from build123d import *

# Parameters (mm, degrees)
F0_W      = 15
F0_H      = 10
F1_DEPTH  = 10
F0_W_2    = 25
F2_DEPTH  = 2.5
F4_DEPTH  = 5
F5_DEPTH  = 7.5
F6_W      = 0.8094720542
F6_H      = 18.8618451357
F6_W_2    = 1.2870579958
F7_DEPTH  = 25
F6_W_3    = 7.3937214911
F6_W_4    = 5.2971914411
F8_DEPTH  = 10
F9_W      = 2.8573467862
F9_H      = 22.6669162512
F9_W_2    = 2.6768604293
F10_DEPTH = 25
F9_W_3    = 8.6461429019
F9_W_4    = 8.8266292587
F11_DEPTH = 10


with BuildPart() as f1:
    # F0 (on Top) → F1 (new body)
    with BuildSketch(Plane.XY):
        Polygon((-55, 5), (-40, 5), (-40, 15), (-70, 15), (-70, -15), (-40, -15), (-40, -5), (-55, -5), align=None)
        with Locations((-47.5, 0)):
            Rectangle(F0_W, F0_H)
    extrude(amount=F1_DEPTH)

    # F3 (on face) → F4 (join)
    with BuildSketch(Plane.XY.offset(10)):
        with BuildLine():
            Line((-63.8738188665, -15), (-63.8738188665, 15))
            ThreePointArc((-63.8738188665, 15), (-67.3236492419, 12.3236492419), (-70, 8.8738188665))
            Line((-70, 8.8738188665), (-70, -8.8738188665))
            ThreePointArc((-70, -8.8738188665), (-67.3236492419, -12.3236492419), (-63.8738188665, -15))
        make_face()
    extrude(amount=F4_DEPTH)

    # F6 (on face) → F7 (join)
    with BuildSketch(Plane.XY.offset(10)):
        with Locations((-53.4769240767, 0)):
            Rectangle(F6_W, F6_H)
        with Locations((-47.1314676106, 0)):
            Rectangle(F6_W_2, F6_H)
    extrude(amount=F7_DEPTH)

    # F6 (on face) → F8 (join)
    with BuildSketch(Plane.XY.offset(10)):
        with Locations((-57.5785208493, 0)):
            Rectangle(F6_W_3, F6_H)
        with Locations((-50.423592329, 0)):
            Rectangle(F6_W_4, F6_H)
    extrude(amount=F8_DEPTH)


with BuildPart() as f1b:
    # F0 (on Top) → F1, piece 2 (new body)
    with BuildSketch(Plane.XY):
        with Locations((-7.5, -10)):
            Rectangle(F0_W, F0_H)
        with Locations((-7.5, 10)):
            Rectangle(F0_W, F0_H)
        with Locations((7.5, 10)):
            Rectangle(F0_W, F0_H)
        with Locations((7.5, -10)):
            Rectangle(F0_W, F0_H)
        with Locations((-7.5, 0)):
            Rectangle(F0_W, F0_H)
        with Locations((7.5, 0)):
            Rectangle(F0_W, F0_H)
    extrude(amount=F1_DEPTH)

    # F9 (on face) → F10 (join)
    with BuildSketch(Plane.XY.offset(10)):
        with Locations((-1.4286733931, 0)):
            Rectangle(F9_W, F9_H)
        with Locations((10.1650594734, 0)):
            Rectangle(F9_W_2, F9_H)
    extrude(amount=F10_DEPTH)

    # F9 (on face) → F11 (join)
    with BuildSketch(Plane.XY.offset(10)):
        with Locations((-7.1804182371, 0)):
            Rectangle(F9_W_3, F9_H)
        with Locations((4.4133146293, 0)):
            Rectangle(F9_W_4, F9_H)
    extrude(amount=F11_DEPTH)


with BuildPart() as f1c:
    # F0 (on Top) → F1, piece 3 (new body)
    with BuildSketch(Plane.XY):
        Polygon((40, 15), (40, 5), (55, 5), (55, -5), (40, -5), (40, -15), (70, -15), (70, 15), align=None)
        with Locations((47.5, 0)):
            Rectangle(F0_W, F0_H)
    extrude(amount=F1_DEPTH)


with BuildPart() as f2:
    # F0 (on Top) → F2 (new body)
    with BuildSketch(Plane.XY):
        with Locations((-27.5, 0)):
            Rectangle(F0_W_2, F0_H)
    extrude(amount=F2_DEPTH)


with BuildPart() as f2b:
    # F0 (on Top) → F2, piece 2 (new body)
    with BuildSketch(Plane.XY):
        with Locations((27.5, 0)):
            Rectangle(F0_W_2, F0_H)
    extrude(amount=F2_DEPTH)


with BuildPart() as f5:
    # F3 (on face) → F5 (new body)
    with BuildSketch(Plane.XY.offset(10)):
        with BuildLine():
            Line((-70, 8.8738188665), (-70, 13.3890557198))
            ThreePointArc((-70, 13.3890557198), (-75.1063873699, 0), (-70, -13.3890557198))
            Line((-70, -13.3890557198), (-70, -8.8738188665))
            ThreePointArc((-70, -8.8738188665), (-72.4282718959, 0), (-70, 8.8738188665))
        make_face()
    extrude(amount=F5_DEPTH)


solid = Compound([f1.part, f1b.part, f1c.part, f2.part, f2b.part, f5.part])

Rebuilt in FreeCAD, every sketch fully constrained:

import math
import FreeCAD as App
import Part
import Sketcher


def add_polygon(sketch, points):
    """Adds a closed chain of lines whose ends are joined by coincident constraints."""
    first, n = sketch.GeometryCount, len(points)
    for a, b in zip(points, points[1:] + points[:1]):
        sketch.addGeometry(Part.LineSegment(App.Vector(*a, 0), App.Vector(*b, 0)), False)
    for i in range(n):
        sketch.addConstraint(Sketcher.Constraint("Coincident", first + i, 2, first + (i + 1) % n, 1))

doc = App.newDocument("Part")
body = doc.addObject("PartDesign::Body", "Body")

# Sketch on XY plane
sketch1 = body.newObject("Sketcher::SketchObject", "Sketch")
sketch1.AttachmentSupport = (doc.getObject("XY_Plane"), [""])
sketch1.MapMode = "FlatFace"
add_polygon(sketch1, [(-40, 15), (-70, 15), (-70, -15), (-40, -15)])  # lines 0-3
sketch1.addConstraint(Sketcher.Constraint("Horizontal", 0))
sketch1.addConstraint(Sketcher.Constraint("Vertical", 1))
sketch1.addConstraint(Sketcher.Constraint("Horizontal", 2))
sketch1.addConstraint(Sketcher.Constraint("Vertical", 3))
sketch1.addConstraint(Sketcher.Constraint("Equal", 2, 1))
sketch1.addConstraint(Sketcher.Constraint("DistanceX", 0, 2, 0, 1, 30.0))
sketch1.addConstraint(Sketcher.Constraint("DistanceX", 0, 2, -1, 1, 70.0))
sketch1.addConstraint(Sketcher.Constraint("DistanceY", -1, 1, 0, 2, 15.0))
pad1 = body.newObject("PartDesign::Pad", "Pad")
pad1.Profile = sketch1
pad1.Length = 10

# Sketch on XY plane
sketch2 = body.newObject("Sketcher::SketchObject", "Sketch001")
sketch2.AttachmentSupport = (doc.getObject("XY_Plane"), [""])
sketch2.MapMode = "FlatFace"
sketch2.AttachmentOffset = App.Placement(App.Vector(0, 0, 10), App.Rotation())
sketch2.addGeometry(Part.LineSegment(App.Vector(-64, -15, 0), App.Vector(-64, 15, 0)), False)
sketch2.addGeometry(Part.ArcOfCircle(Part.Circle(App.Vector(-55, 0, 0), App.Vector(0, 0, 1), 17), math.radians(121), math.radians(149)), False)
sketch2.addGeometry(Part.LineSegment(App.Vector(-70, 9, 0), App.Vector(-70, -9, 0)), False)
sketch2.addGeometry(Part.ArcOfCircle(Part.Circle(App.Vector(-55, 0, 0), App.Vector(0, 0, 1), 17), math.radians(-149), math.radians(-121)), False)
sketch2.addConstraint(Sketcher.Constraint("Coincident", 0, 2, 1, 1))
sketch2.addConstraint(Sketcher.Constraint("Coincident", 1, 2, 2, 1))
sketch2.addConstraint(Sketcher.Constraint("Coincident", 2, 2, 3, 1))
sketch2.addConstraint(Sketcher.Constraint("Coincident", 3, 2, 0, 1))
sketch2.addConstraint(Sketcher.Constraint("Vertical", 0))
sketch2.addConstraint(Sketcher.Constraint("Vertical", 2))
sketch2.addConstraint(Sketcher.Constraint("Coincident", 3, 3, 1, 3))
sketch2.addConstraint(Sketcher.Constraint("Equal", 1, 3))
sketch2.addConstraint(Sketcher.Constraint("PointOnObject", 1, 3, -1))
sketch2.addConstraint(Sketcher.Constraint("DistanceY", 0, 1, 0, 2, 30.0))
sketch2.addConstraint(Sketcher.Constraint("DistanceX", 1, 3, -1, 1, 55.0))
sketch2.addConstraint(Sketcher.Constraint("DistanceX", 1, 2, -1, 1, 70.0))
sketch2.addConstraint(Sketcher.Constraint("Radius", 1, 17.428272))
pad2 = body.newObject("PartDesign::Pad", "Pad001")
pad2.Profile = sketch2
pad2.Length = 5

# Sketch on XY plane
sketch3 = body.newObject("Sketcher::SketchObject", "Sketch002")
sketch3.AttachmentSupport = (doc.getObject("XY_Plane"), [""])
sketch3.MapMode = "FlatFace"
sketch3.AttachmentOffset = App.Placement(App.Vector(0, 0, 10), App.Rotation())
add_polygon(sketch3, [(-53.9, 9.4), (-53.9, -9.4), (-53.1, -9.4), (-53.1, 9.4)])  # lines 0-3
add_polygon(sketch3, [(-47.8, 9.4), (-47.8, -9.4), (-46.5, -9.4), (-46.5, 9.4)])  # lines 4-7
sketch3.addConstraint(Sketcher.Constraint("Vertical", 0))
sketch3.addConstraint(Sketcher.Constraint("Horizontal", 1))
sketch3.addConstraint(Sketcher.Constraint("Vertical", 2))
sketch3.addConstraint(Sketcher.Constraint("Horizontal", 3))
sketch3.addConstraint(Sketcher.Constraint("Vertical", 4))
sketch3.addConstraint(Sketcher.Constraint("Horizontal", 5))
sketch3.addConstraint(Sketcher.Constraint("Vertical", 6))
sketch3.addConstraint(Sketcher.Constraint("Horizontal", 7))
sketch3.addConstraint(Sketcher.Constraint("Horizontal", 1, 2, 4, 2))
sketch3.addConstraint(Sketcher.Constraint("Horizontal", 3, 2, 6, 2))
sketch3.addConstraint(Sketcher.Constraint("DistanceX", 1, 1, 1, 2, 0.809472))
sketch3.addConstraint(Sketcher.Constraint("DistanceX", 5, 1, 5, 2, 1.287058))
sketch3.addConstraint(Sketcher.Constraint("DistanceY", 0, 2, 0, 1, 18.861845))
sketch3.addConstraint(Sketcher.Constraint("DistanceX", 0, 2, -1, 1, 53.88166))
sketch3.addConstraint(Sketcher.Constraint("DistanceX", 5, 2, -1, 1, 46.487939))
sketch3.addConstraint(Sketcher.Constraint("DistanceY", 0, 2, -1, 1, 9.430923))
pad3 = body.newObject("PartDesign::Pad", "Pad002")
pad3.Profile = sketch3
pad3.Length = 25

# Sketch on XY plane
sketch4 = body.newObject("Sketcher::SketchObject", "Sketch003")
sketch4.AttachmentSupport = (doc.getObject("XY_Plane"), [""])
sketch4.MapMode = "FlatFace"
sketch4.AttachmentOffset = App.Placement(App.Vector(0, 0, 10), App.Rotation())
add_polygon(sketch4, [(-61, 9), (-61, -9), (-54, -9), (-54, 9)])  # lines 0-3
add_polygon(sketch4, [(-53, 9), (-53, -9), (-48, -9), (-48, 9)])  # lines 4-7
sketch4.addConstraint(Sketcher.Constraint("Vertical", 0))
sketch4.addConstraint(Sketcher.Constraint("Horizontal", 1))
sketch4.addConstraint(Sketcher.Constraint("Vertical", 2))
sketch4.addConstraint(Sketcher.Constraint("Horizontal", 3))
sketch4.addConstraint(Sketcher.Constraint("Vertical", 4))
sketch4.addConstraint(Sketcher.Constraint("Horizontal", 5))
sketch4.addConstraint(Sketcher.Constraint("Vertical", 6))
sketch4.addConstraint(Sketcher.Constraint("Horizontal", 7))
sketch4.addConstraint(Sketcher.Constraint("Horizontal", 1, 2, 4, 2))
sketch4.addConstraint(Sketcher.Constraint("Horizontal", 3, 2, 6, 2))
sketch4.addConstraint(Sketcher.Constraint("DistanceX", 1, 1, 1, 2, 7.393721))
sketch4.addConstraint(Sketcher.Constraint("DistanceX", 5, 1, 5, 2, 5.297191))
sketch4.addConstraint(Sketcher.Constraint("DistanceY", 0, 2, 0, 1, 18.861845))
sketch4.addConstraint(Sketcher.Constraint("DistanceX", 0, 2, -1, 1, 61.275382))
sketch4.addConstraint(Sketcher.Constraint("DistanceX", 4, 2, -1, 1, 53.072188))
sketch4.addConstraint(Sketcher.Constraint("DistanceY", 0, 2, -1, 1, 9.430923))
pad4 = body.newObject("PartDesign::Pad", "Pad003")
pad4.Profile = sketch4
pad4.Length = 10
body2 = doc.addObject("PartDesign::Body", "Body001")

# Sketch on XY plane
sketch5 = body2.newObject("Sketcher::SketchObject", "Sketch004")
sketch5.AttachmentSupport = (doc.getObject("XY_Plane001"), [""])
sketch5.MapMode = "FlatFace"
add_polygon(sketch5, [(-15, -15), (15, -15), (15, 15), (-15, 15)])  # lines 0-3
sketch5.addConstraint(Sketcher.Constraint("Horizontal", 0))
sketch5.addConstraint(Sketcher.Constraint("Vertical", 1))
sketch5.addConstraint(Sketcher.Constraint("Horizontal", 2))
sketch5.addConstraint(Sketcher.Constraint("Vertical", 3))
sketch5.addConstraint(Sketcher.Constraint("Symmetric", 0, 2, 2, 2, -1, 1))
sketch5.addConstraint(Sketcher.Constraint("Equal", 2, 1))
sketch5.addConstraint(Sketcher.Constraint("DistanceX", 0, 1, 0, 2, 30.0))
pad5 = body2.newObject("PartDesign::Pad", "Pad004")
pad5.Profile = sketch5
pad5.Length = 10

# Sketch on XY plane
sketch6 = body2.newObject("Sketcher::SketchObject", "Sketch005")
sketch6.AttachmentSupport = (doc.getObject("XY_Plane001"), [""])
sketch6.MapMode = "FlatFace"
sketch6.AttachmentOffset = App.Placement(App.Vector(0, 0, 10), App.Rotation())
add_polygon(sketch6, [(-2.9, 11.3), (-2.9, -11.3), (0, -11.3), (0, 11.3)])  # lines 0-3
add_polygon(sketch6, [(8.8, 11.3), (8.8, -11.3), (11.5, -11.3), (11.5, 11.3)])  # lines 4-7
sketch6.addConstraint(Sketcher.Constraint("Vertical", 0))
sketch6.addConstraint(Sketcher.Constraint("Horizontal", 1))
sketch6.addConstraint(Sketcher.Constraint("Vertical", 2))
sketch6.addConstraint(Sketcher.Constraint("Horizontal", 3))
sketch6.addConstraint(Sketcher.Constraint("Vertical", 4))
sketch6.addConstraint(Sketcher.Constraint("Horizontal", 5))
sketch6.addConstraint(Sketcher.Constraint("Vertical", 6))
sketch6.addConstraint(Sketcher.Constraint("Horizontal", 7))
sketch6.addConstraint(Sketcher.Constraint("Symmetric", 1, 2, 2, 2, -1, 1))
sketch6.addConstraint(Sketcher.Constraint("Horizontal", 1, 2, 4, 2))
sketch6.addConstraint(Sketcher.Constraint("Horizontal", 3, 2, 6, 2))
sketch6.addConstraint(Sketcher.Constraint("DistanceX", 5, 1, 5, 2, 2.67686))
sketch6.addConstraint(Sketcher.Constraint("DistanceX", 1, 1, 1, 2, 2.857347))
sketch6.addConstraint(Sketcher.Constraint("DistanceY", 0, 2, 0, 1, 22.666916))
sketch6.addConstraint(Sketcher.Constraint("DistanceX", -1, 1, 4, 2, 8.826629))
pad6 = body2.newObject("PartDesign::Pad", "Pad005")
pad6.Profile = sketch6
pad6.Length = 25

# Sketch on XY plane
sketch7 = body2.newObject("Sketcher::SketchObject", "Sketch006")
sketch7.AttachmentSupport = (doc.getObject("XY_Plane001"), [""])
sketch7.MapMode = "FlatFace"
sketch7.AttachmentOffset = App.Placement(App.Vector(0, 0, 10), App.Rotation())
add_polygon(sketch7, [(-12, 11), (-12, -11), (-3, -11), (-3, 11)])  # lines 0-3
add_polygon(sketch7, [(0, 11), (0, -11), (9, -11), (9, 11)])  # lines 4-7
sketch7.addConstraint(Sketcher.Constraint("Vertical", 0))
sketch7.addConstraint(Sketcher.Constraint("Horizontal", 1))
sketch7.addConstraint(Sketcher.Constraint("Vertical", 2))
sketch7.addConstraint(Sketcher.Constraint("Horizontal", 3))
sketch7.addConstraint(Sketcher.Constraint("Vertical", 4))
sketch7.addConstraint(Sketcher.Constraint("Horizontal", 5))
sketch7.addConstraint(Sketcher.Constraint("Vertical", 6))
sketch7.addConstraint(Sketcher.Constraint("Horizontal", 7))
sketch7.addConstraint(Sketcher.Constraint("Symmetric", 4, 2, 7, 2, -1, 1))
sketch7.addConstraint(Sketcher.Constraint("Horizontal", 1, 2, 4, 2))
sketch7.addConstraint(Sketcher.Constraint("Horizontal", 3, 2, 6, 2))
sketch7.addConstraint(Sketcher.Constraint("DistanceX", 5, 1, 5, 2, 8.826629))
sketch7.addConstraint(Sketcher.Constraint("DistanceX", 1, 1, 1, 2, 8.646143))
sketch7.addConstraint(Sketcher.Constraint("DistanceY", 0, 2, 0, 1, 22.666916))
sketch7.addConstraint(Sketcher.Constraint("DistanceX", 0, 2, -1, 1, 11.50349))
pad7 = body2.newObject("PartDesign::Pad", "Pad006")
pad7.Profile = sketch7
pad7.Length = 10
body3 = doc.addObject("PartDesign::Body", "Body002")

# Sketch on XY plane
sketch8 = body3.newObject("Sketcher::SketchObject", "Sketch007")
sketch8.AttachmentSupport = (doc.getObject("XY_Plane002"), [""])
sketch8.MapMode = "FlatFace"
add_polygon(sketch8, [(40, 15), (40, -15), (70, -15), (70, 15)])  # lines 0-3
sketch8.addConstraint(Sketcher.Constraint("Vertical", 0))
sketch8.addConstraint(Sketcher.Constraint("Horizontal", 1))
sketch8.addConstraint(Sketcher.Constraint("Vertical", 2))
sketch8.addConstraint(Sketcher.Constraint("Horizontal", 3))
sketch8.addConstraint(Sketcher.Constraint("Equal", 3, 0))
sketch8.addConstraint(Sketcher.Constraint("DistanceX", 1, 1, 1, 2, 30.0))
sketch8.addConstraint(Sketcher.Constraint("DistanceX", -1, 1, 0, 2, 40.0))
sketch8.addConstraint(Sketcher.Constraint("DistanceY", 0, 2, -1, 1, 15.0))
pad8 = body3.newObject("PartDesign::Pad", "Pad007")
pad8.Profile = sketch8
pad8.Length = 10
body4 = doc.addObject("PartDesign::Body", "Body003")

# Sketch on XY plane
sketch9 = body4.newObject("Sketcher::SketchObject", "Sketch008")
sketch9.AttachmentSupport = (doc.getObject("XY_Plane003"), [""])
sketch9.MapMode = "FlatFace"
add_polygon(sketch9, [(-40, 5), (-40, -5), (-15, -5), (-15, 5)])  # lines 0-3
sketch9.addConstraint(Sketcher.Constraint("Vertical", 0))
sketch9.addConstraint(Sketcher.Constraint("Horizontal", 1))
sketch9.addConstraint(Sketcher.Constraint("Vertical", 2))
sketch9.addConstraint(Sketcher.Constraint("Horizontal", 3))
sketch9.addConstraint(Sketcher.Constraint("DistanceX", 1, 1, 1, 2, 25.0))
sketch9.addConstraint(Sketcher.Constraint("DistanceY", 0, 2, 0, 1, 10.0))
sketch9.addConstraint(Sketcher.Constraint("DistanceX", 0, 2, -1, 1, 40.0))
sketch9.addConstraint(Sketcher.Constraint("DistanceY", 0, 2, -1, 1, 5.0))
pad9 = body4.newObject("PartDesign::Pad", "Pad008")
pad9.Profile = sketch9
pad9.Length = 2.5
body5 = doc.addObject("PartDesign::Body", "Body004")

# Sketch on XY plane
sketch10 = body5.newObject("Sketcher::SketchObject", "Sketch009")
sketch10.AttachmentSupport = (doc.getObject("XY_Plane004"), [""])
sketch10.MapMode = "FlatFace"
add_polygon(sketch10, [(15, 5), (15, -5), (40, -5), (40, 5)])  # lines 0-3
sketch10.addConstraint(Sketcher.Constraint("Vertical", 0))
sketch10.addConstraint(Sketcher.Constraint("Horizontal", 1))
sketch10.addConstraint(Sketcher.Constraint("Vertical", 2))
sketch10.addConstraint(Sketcher.Constraint("Horizontal", 3))
sketch10.addConstraint(Sketcher.Constraint("DistanceX", 1, 1, 1, 2, 25.0))
sketch10.addConstraint(Sketcher.Constraint("DistanceY", 0, 2, 0, 1, 10.0))
sketch10.addConstraint(Sketcher.Constraint("DistanceX", -1, 1, 0, 2, 15.0))
sketch10.addConstraint(Sketcher.Constraint("DistanceY", 0, 2, -1, 1, 5.0))
pad10 = body5.newObject("PartDesign::Pad", "Pad009")
pad10.Profile = sketch10
pad10.Length = 2.5
body6 = doc.addObject("PartDesign::Body", "Body005")

# Sketch on XY plane
sketch11 = body6.newObject("Sketcher::SketchObject", "Sketch010")
sketch11.AttachmentSupport = (doc.getObject("XY_Plane005"), [""])
sketch11.MapMode = "FlatFace"
sketch11.AttachmentOffset = App.Placement(App.Vector(0, 0, 10), App.Rotation())
sketch11.addGeometry(Part.LineSegment(App.Vector(-70, 8.9, 0), App.Vector(-70, 13.4, 0)), False)
sketch11.addGeometry(Part.ArcOfCircle(Part.Circle(App.Vector(-55, 0, 0), App.Vector(0, 0, 1), 20.1), math.radians(138), math.radians(222)), False)
sketch11.addGeometry(Part.LineSegment(App.Vector(-70, -13.4, 0), App.Vector(-70, -8.9, 0)), False)
sketch11.addGeometry(Part.ArcOfCircle(Part.Circle(App.Vector(-55, 0, 0), App.Vector(0, 0, 1), 17.4), math.radians(149), math.radians(211)), False)
sketch11.addConstraint(Sketcher.Constraint("Coincident", 0, 2, 1, 1))
sketch11.addConstraint(Sketcher.Constraint("Coincident", 1, 2, 2, 1))
sketch11.addConstraint(Sketcher.Constraint("Coincident", 2, 2, 3, 2))
sketch11.addConstraint(Sketcher.Constraint("Coincident", 3, 1, 0, 1))
sketch11.addConstraint(Sketcher.Constraint("Vertical", 0))
sketch11.addConstraint(Sketcher.Constraint("Vertical", 2))
sketch11.addConstraint(Sketcher.Constraint("Coincident", 3, 3, 1, 3))
sketch11.addConstraint(Sketcher.Constraint("Symmetric", 0, 2, 1, 2, -1))
sketch11.addConstraint(Sketcher.Constraint("DistanceX", 1, 3, -1, 1, 55.0))
sketch11.addConstraint(Sketcher.Constraint("DistanceX", 0, 2, -1, 1, 70.0))
sketch11.addConstraint(Sketcher.Constraint("Radius", 3, 17.428272))
sketch11.addConstraint(Sketcher.Constraint("Radius", 1, 20.106387))
pad11 = body6.newObject("PartDesign::Pad", "Pad010")
pad11.Profile = sketch11
pad11.Length = 7.5

doc.recompute()
